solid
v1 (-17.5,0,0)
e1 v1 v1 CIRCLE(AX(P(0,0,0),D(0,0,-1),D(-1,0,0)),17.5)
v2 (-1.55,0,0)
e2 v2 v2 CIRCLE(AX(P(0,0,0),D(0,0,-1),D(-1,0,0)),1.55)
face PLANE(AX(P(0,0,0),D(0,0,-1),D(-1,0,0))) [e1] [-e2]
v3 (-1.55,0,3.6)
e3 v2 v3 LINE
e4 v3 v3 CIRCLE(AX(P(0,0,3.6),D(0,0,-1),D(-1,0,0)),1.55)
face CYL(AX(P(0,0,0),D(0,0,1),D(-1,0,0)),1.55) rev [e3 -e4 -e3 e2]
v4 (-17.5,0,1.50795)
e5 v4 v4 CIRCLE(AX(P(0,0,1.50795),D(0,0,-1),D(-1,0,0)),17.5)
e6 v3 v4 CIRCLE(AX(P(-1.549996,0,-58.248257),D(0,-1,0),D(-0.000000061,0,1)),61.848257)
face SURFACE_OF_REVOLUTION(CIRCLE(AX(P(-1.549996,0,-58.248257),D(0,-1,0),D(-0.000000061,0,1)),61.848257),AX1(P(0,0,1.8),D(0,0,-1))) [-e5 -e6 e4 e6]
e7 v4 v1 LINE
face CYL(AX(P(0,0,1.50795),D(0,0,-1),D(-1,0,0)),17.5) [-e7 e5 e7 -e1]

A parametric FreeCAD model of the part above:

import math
import FreeCAD as App
import Part
import Sketcher

V = App.Vector

doc = App.newDocument("Part")
params = doc.addObject("Spreadsheet::Sheet", "Params")
for row, (alias, value) in enumerate([
    ("sketch1_height", "3.6 mm"),
    ("sketch1_width", "15.95 mm"),
    ("revolution_angle", "360 deg"),
], start=1):
    params.set(f"A{row}", alias)
    params.set(f"B{row}", "=" + value)
    params.setAlias(f"B{row}", alias)

body = doc.addObject("PartDesign::Body", "Body")

# Sketch on XZ plane
sketch1 = body.newObject("Sketcher::SketchObject", "Sketch")
sketch1.AttachmentSupport = (doc.getObject("XZ_Plane"), [""])
sketch1.MapMode = "FlatFace"
sketch1.addGeometry(Part.LineSegment(V(-1.6, 0, 0), V(-1.6, 3.6, 0)), False)
sketch1.addGeometry(Part.ArcOfCircle(Part.Circle(V(-1.5, -58.2, 0), V(0, 0, 1), 61.8), math.radians(90), math.radians(104.94)), False)
sketch1.addGeometry(Part.LineSegment(V(-17.5, 1.5, 0), V(-17.5, 0, 0)), False)
sketch1.addGeometry(Part.LineSegment(V(-17.5, 0, 0), V(-1.6, 0, 0)), False)
sketch1.addConstraint(Sketcher.Constraint("Coincident", 0, 2, 1, 1))
sketch1.addConstraint(Sketcher.Constraint("Coincident", 1, 2, 2, 1))
sketch1.addConstraint(Sketcher.Constraint("Coincident", 2, 2, 3, 1))
sketch1.addConstraint(Sketcher.Constraint("Coincident", 3, 2, 0, 1))
sketch1.addConstraint(Sketcher.Constraint("Vertical", 0))
sketch1.addConstraint(Sketcher.Constraint("Vertical", 2))
sketch1.addConstraint(Sketcher.Constraint("Horizontal", 3))
sketch1.addConstraint(Sketcher.Constraint("PointOnObject", 2, 2, -1))
sketch1.addConstraint(Sketcher.Constraint("DistanceY", 0, 1, 0, 2, 3.6))
sketch1.addConstraint(Sketcher.Constraint("DistanceX", 3, 1, 3, 2, 15.95))
sketch1.addConstraint(Sketcher.Constraint("DistanceX", 1, 2, -1, 1, 17.5))
sketch1.addConstraint(Sketcher.Constraint("Radius", 1, 61.848257))
sketch1.addConstraint(Sketcher.Constraint("DistanceY", 2, 2, 2, 1, 1.50795))
sketch1.setExpression("Constraints[8]", "Params.sketch1_height")
sketch1.setExpression("Constraints[9]", "Params.sketch1_width")
revolution = body.newObject("PartDesign::Revolution", "Revolution")
revolution.Profile = sketch1
revolution.ReferenceAxis = (sketch1, ["V_Axis"])
revolution.setExpression("Angle", "Params.revolution_angle")

doc.recompute()
